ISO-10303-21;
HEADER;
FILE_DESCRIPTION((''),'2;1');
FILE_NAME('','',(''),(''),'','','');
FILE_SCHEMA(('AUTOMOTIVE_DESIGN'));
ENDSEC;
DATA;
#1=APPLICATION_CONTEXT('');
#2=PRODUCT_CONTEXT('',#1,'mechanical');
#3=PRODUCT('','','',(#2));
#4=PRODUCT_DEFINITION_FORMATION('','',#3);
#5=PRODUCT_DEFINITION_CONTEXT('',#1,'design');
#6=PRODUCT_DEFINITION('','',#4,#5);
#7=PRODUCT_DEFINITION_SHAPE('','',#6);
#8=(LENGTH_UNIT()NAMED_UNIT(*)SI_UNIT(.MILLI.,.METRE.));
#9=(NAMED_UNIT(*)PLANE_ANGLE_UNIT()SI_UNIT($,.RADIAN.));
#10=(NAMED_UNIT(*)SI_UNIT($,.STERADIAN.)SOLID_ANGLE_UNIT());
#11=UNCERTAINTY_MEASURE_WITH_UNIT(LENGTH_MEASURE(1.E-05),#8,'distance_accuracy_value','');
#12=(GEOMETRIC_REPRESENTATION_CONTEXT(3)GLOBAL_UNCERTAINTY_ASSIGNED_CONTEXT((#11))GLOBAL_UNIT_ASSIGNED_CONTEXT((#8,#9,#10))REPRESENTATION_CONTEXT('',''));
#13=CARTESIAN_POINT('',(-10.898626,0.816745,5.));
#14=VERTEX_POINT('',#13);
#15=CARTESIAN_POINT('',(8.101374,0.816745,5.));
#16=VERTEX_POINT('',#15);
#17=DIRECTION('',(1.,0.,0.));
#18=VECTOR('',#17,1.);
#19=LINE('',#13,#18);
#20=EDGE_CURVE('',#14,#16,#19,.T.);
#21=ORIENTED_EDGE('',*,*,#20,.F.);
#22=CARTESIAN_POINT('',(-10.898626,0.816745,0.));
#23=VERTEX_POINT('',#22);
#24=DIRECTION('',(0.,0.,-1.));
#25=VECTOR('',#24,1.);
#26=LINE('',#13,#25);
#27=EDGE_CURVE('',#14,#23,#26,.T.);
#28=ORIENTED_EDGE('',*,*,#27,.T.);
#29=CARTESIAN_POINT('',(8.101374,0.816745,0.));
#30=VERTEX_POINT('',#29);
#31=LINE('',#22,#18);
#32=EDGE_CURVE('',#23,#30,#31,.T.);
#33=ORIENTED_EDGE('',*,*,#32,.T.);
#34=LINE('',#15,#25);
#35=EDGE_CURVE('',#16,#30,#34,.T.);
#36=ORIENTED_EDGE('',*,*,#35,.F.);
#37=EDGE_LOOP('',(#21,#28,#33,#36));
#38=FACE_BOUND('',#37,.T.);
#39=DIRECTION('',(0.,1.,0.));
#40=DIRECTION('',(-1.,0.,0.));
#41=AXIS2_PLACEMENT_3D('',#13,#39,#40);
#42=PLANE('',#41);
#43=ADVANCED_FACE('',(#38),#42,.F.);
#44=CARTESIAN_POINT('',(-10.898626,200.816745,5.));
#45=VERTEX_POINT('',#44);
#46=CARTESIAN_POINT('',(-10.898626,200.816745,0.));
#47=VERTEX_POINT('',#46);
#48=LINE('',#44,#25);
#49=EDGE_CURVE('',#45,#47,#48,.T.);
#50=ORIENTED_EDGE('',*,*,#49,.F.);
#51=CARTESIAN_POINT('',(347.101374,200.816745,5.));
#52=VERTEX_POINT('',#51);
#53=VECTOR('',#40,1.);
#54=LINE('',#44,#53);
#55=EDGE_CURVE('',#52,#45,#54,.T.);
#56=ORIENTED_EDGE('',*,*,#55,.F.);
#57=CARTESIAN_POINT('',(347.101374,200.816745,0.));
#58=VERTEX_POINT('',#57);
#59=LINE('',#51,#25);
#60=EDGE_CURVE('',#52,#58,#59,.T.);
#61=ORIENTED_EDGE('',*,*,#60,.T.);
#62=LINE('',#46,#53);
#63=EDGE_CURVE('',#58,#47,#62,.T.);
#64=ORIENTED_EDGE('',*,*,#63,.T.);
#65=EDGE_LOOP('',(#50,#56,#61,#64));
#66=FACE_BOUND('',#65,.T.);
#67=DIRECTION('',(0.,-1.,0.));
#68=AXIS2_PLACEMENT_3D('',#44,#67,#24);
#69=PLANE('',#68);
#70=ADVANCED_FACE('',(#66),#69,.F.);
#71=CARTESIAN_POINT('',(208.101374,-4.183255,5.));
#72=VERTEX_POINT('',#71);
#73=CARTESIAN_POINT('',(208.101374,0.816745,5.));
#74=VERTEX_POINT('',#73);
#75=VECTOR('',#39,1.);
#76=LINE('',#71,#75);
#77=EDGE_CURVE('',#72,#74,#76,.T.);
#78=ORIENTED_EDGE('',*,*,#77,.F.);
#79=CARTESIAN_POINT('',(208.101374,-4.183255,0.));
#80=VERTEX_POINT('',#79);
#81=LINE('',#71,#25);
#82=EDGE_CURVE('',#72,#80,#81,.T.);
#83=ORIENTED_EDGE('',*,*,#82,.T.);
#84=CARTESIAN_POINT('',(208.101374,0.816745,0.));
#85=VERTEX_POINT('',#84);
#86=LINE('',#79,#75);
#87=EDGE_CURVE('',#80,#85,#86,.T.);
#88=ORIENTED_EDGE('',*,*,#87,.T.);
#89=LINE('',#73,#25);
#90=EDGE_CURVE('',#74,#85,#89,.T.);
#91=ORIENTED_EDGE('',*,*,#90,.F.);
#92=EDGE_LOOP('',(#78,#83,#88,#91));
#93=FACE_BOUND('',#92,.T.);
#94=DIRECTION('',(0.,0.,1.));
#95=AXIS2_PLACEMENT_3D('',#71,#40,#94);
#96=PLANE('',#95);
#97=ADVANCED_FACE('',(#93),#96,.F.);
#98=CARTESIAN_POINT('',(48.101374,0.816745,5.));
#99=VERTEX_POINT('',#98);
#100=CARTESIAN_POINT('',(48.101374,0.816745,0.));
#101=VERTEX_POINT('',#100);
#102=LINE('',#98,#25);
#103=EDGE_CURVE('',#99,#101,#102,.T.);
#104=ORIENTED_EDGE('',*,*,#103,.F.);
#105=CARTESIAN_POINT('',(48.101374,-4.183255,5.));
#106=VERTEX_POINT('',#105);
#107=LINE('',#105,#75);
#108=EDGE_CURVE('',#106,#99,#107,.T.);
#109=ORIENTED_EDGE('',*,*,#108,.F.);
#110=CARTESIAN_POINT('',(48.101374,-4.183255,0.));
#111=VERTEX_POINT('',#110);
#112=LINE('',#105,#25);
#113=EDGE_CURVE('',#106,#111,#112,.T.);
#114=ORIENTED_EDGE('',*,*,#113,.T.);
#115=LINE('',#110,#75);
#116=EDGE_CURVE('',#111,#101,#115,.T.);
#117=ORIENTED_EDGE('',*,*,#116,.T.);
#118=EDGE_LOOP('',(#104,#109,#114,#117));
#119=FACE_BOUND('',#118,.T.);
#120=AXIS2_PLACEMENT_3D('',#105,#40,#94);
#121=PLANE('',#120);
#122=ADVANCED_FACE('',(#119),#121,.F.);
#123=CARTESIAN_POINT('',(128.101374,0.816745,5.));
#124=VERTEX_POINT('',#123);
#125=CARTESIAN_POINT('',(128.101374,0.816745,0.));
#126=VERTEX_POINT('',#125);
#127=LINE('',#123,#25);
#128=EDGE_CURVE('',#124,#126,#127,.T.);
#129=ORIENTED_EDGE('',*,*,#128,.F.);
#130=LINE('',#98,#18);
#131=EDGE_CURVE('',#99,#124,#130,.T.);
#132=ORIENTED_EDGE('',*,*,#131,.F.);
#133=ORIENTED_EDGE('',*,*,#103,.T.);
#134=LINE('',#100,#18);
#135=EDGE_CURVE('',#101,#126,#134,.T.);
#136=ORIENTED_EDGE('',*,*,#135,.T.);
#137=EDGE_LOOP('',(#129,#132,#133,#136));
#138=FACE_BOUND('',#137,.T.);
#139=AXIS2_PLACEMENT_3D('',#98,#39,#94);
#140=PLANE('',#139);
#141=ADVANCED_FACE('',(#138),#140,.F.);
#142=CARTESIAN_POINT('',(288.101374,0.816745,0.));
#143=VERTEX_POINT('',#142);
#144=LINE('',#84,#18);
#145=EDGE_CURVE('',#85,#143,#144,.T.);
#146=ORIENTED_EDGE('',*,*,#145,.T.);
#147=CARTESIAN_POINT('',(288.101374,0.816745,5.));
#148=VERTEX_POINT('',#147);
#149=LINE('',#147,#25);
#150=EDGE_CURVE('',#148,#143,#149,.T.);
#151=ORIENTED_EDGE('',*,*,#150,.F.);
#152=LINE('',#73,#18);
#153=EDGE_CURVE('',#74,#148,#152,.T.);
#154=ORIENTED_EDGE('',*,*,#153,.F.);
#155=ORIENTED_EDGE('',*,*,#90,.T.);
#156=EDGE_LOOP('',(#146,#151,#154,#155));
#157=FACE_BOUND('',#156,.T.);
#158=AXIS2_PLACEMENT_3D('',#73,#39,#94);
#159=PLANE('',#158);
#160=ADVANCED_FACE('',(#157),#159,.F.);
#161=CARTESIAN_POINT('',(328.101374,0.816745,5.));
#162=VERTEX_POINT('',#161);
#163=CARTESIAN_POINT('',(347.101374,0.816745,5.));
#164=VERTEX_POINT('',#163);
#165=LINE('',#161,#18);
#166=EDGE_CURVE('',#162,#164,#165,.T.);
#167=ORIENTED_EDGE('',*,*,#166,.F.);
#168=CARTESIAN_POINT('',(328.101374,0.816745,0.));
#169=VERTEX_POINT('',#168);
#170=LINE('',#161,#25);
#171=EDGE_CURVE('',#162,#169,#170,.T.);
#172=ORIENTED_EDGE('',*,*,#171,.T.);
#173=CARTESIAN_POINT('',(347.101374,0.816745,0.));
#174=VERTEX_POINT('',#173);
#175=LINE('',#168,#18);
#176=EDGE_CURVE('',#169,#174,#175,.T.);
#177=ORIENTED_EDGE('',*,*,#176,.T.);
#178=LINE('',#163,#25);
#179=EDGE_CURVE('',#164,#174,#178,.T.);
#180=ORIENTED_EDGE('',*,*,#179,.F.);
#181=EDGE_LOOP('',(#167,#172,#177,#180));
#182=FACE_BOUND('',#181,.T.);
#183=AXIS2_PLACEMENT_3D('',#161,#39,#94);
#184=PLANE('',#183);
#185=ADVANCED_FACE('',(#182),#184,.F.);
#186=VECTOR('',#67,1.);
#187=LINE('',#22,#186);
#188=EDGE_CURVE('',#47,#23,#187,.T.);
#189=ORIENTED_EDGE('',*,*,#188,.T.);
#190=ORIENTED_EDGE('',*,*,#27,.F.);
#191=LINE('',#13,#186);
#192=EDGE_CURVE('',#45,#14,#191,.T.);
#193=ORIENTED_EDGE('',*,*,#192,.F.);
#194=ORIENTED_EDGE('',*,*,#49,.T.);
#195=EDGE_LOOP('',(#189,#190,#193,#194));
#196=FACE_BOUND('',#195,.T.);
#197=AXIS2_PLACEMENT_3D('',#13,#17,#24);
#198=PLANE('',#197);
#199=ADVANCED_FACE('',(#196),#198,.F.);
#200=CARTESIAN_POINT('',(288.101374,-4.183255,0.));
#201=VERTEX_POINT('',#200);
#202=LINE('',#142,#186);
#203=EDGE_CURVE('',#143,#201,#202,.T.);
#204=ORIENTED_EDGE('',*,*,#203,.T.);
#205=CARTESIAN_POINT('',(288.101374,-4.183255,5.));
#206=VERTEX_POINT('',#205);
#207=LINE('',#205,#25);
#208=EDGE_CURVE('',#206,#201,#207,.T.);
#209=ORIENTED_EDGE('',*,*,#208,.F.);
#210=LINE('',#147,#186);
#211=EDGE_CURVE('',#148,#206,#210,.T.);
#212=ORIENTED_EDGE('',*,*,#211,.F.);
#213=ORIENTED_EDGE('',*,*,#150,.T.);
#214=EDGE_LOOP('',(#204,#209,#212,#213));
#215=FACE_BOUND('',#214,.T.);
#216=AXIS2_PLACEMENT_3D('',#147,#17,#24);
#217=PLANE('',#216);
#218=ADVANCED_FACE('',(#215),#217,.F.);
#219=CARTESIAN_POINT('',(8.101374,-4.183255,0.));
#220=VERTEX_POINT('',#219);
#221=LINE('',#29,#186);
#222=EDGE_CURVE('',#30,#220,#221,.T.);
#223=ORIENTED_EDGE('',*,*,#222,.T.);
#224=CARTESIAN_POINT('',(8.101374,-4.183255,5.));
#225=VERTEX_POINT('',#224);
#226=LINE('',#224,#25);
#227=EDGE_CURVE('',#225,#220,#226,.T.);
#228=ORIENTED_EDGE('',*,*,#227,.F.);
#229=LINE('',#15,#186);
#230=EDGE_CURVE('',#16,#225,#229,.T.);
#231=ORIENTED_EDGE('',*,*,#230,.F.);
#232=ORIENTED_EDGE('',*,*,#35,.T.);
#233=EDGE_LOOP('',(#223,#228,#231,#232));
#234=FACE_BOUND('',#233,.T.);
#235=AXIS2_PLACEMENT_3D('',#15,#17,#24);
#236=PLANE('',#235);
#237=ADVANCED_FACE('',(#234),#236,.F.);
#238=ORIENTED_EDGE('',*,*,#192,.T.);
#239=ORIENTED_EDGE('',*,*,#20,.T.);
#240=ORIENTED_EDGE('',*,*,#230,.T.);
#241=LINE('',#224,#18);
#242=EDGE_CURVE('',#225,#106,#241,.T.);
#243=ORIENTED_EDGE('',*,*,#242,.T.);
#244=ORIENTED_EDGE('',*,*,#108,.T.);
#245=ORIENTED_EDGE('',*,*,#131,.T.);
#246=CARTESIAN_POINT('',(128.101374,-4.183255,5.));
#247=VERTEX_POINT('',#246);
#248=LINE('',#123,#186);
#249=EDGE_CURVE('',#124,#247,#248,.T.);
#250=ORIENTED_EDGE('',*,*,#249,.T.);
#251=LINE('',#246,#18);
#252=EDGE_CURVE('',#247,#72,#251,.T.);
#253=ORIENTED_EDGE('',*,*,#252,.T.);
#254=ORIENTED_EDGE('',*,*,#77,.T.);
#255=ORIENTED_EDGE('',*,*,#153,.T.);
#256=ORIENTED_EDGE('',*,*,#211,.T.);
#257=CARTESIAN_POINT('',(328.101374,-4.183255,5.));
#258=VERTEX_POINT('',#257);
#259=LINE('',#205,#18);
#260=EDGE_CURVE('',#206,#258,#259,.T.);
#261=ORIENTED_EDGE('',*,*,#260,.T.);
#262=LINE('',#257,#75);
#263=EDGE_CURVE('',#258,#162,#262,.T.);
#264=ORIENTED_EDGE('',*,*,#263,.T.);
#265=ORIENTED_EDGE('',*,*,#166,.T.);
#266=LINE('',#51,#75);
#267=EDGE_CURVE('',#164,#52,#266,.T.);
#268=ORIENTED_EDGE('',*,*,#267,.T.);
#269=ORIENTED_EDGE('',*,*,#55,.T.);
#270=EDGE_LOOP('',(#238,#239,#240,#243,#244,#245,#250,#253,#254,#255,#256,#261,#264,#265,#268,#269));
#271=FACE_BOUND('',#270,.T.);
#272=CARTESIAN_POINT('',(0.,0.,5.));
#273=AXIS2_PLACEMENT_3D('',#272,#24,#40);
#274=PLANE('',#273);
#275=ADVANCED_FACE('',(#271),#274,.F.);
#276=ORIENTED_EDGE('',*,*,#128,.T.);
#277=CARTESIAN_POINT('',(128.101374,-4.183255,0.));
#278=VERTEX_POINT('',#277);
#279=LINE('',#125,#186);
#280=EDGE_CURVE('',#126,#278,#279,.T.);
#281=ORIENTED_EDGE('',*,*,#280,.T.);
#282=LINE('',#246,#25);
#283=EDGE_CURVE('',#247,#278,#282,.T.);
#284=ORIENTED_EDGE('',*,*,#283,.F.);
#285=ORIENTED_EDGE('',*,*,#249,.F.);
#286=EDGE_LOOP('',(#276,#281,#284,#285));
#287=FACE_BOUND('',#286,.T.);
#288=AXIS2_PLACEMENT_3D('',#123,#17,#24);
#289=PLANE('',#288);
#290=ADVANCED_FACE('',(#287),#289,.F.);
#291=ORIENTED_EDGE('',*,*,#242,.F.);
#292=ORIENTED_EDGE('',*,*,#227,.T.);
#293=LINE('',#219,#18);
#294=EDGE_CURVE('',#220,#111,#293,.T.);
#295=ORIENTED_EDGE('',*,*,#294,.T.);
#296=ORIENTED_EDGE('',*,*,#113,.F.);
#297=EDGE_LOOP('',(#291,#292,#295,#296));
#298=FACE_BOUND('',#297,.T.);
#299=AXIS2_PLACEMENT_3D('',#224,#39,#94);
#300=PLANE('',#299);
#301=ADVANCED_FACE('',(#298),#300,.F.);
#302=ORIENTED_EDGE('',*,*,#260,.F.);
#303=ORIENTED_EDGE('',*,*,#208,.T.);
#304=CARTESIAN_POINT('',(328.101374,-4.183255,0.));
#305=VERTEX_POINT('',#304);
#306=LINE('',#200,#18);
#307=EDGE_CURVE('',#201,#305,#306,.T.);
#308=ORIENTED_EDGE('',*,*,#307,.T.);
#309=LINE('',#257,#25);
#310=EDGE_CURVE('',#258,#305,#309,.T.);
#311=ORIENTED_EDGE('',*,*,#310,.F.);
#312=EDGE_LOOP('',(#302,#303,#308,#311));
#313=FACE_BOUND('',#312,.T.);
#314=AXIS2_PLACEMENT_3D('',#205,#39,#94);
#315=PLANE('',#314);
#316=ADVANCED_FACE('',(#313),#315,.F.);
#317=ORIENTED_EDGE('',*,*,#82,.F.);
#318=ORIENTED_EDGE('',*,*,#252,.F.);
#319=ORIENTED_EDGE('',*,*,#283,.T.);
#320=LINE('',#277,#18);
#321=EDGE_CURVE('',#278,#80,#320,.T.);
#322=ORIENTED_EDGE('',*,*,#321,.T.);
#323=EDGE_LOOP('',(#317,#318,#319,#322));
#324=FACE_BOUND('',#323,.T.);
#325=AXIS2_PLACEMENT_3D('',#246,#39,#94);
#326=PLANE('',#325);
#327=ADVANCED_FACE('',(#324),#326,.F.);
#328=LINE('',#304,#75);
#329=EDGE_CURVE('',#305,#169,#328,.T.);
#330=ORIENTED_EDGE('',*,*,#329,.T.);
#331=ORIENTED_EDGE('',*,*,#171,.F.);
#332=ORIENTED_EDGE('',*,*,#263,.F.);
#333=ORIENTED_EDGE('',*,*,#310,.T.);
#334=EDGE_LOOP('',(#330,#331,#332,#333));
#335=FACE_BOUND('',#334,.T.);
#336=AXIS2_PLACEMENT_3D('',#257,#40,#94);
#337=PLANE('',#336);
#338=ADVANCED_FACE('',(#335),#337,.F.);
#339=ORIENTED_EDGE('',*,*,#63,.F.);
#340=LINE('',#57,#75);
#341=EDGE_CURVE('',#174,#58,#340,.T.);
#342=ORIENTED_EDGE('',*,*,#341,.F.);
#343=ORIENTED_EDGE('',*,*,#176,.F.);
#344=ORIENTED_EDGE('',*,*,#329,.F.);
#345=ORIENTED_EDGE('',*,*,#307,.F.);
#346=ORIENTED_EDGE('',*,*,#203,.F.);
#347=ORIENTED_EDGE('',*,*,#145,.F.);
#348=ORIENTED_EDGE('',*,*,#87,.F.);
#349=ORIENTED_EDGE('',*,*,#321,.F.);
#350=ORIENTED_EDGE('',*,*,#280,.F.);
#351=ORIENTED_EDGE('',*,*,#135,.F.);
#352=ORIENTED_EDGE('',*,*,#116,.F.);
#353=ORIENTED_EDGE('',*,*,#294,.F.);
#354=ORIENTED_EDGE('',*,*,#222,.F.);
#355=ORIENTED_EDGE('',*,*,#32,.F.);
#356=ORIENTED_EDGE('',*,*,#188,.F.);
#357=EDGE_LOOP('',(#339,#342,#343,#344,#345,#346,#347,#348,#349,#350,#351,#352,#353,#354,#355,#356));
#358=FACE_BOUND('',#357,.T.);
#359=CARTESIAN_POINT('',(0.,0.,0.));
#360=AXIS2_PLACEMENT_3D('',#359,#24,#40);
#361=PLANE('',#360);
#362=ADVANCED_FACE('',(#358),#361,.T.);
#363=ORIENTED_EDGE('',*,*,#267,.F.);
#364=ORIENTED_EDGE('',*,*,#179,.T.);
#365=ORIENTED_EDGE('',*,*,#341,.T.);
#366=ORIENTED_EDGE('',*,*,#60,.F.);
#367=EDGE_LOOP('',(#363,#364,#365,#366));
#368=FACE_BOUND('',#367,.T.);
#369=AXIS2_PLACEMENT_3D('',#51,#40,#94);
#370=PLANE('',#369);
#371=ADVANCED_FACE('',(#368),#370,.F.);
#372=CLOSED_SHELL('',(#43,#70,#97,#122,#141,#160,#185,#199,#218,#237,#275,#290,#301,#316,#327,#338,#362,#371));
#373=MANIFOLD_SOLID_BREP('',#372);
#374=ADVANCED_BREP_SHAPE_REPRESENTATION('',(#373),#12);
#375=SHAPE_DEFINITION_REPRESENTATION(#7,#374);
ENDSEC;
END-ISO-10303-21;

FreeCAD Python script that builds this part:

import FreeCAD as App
import Part
import Sketcher


def add_polygon(sketch, points):
    """Adds a closed chain of lines whose ends are joined by coincident constraints."""
    first, n = sketch.GeometryCount, len(points)
    for a, b in zip(points, points[1:] + points[:1]):
        sketch.addGeometry(Part.LineSegment(App.Vector(*a, 0), App.Vector(*b, 0)), False)
    for i in range(n):
        sketch.addConstraint(Sketcher.Constraint("Coincident", first + i, 2, first + (i + 1) % n, 1))

doc = App.newDocument("Part")
body = doc.addObject("PartDesign::Body", "Body")

# Sketch on XY plane
sketch1 = body.newObject("Sketcher::SketchObject", "Sketch")
sketch1.AttachmentSupport = (doc.getObject("XY_Plane"), [""])
sketch1.MapMode = "FlatFace"
add_polygon(sketch1, [(-10.898626, 0.816745), (8.101374, 0.816745), (8.101374, -4.183255), (48.101374, -4.183255), (48.101374, 0.816745), (128.101374, 0.816745), (128.101374, -4.183255), (208.101374, -4.183255), (208.101374, 0.816745), (288.101374, 0.816745), (288.101374, -4.183255), (328.101374, -4.183255), (328.101374, 0.816745), (347.101374, 0.816745), (347.101374, 200.816745), (-10.898626, 200.816745)])  # lines 0-15
sketch1.addConstraint(Sketcher.Constraint("Horizontal", 0))
sketch1.addConstraint(Sketcher.Constraint("Vertical", 1))
sketch1.addConstraint(Sketcher.Constraint("Horizontal", 2))
sketch1.addConstraint(Sketcher.Constraint("Vertical", 3))
sketch1.addConstraint(Sketcher.Constraint("Horizontal", 4))
sketch1.addConstraint(Sketcher.Constraint("Vertical", 5))
sketch1.addConstraint(Sketcher.Constraint("Horizontal", 6))
sketch1.addConstraint(Sketcher.Constraint("Vertical", 7))
sketch1.addConstraint(Sketcher.Constraint("Horizontal", 8))
sketch1.addConstraint(Sketcher.Constraint("Vertical", 9))
sketch1.addConstraint(Sketcher.Constraint("Horizontal", 10))
sketch1.addConstraint(Sketcher.Constraint("Vertical", 11))
sketch1.addConstraint(Sketcher.Constraint("Horizontal", 12))
sketch1.addConstraint(Sketcher.Constraint("Vertical", 13))
sketch1.addConstraint(Sketcher.Constraint("Horizontal", 14))
sketch1.addConstraint(Sketcher.Constraint("Vertical", 15))
sketch1.addConstraint(Sketcher.Constraint("Horizontal", 0, 2, 3, 2))
sketch1.addConstraint(Sketcher.Constraint("Horizontal", 2, 2, 5, 2))
sketch1.addConstraint(Sketcher.Constraint("Horizontal", 4, 2, 7, 2))
sketch1.addConstraint(Sketcher.Constraint("Horizontal", 6, 2, 9, 2))
sketch1.addConstraint(Sketcher.Constraint("Horizontal", 8, 2, 11, 2))
sketch1.addConstraint(Sketcher.Constraint("Equal", 4, 6))
sketch1.addConstraint(Sketcher.Constraint("Equal", 6, 8))
sketch1.addConstraint(Sketcher.Constraint("Equal", 2, 10))
sketch1.addConstraint(Sketcher.Constraint("Equal", 0, 12))
sketch1.addConstraint(Sketcher.Constraint("DistanceX", 0, 1, 0, 2, 19.0))
sketch1.addConstraint(Sketcher.Constraint("DistanceX", 2, 1, 2, 2, 40.0))
sketch1.addConstraint(Sketcher.Constraint("DistanceX", 4, 1, 4, 2, 80.0))
sketch1.addConstraint(Sketcher.Constraint("DistanceY", 1, 2, 1, 1, 5.0))
sketch1.addConstraint(Sketcher.Constraint("DistanceY", 13, 1, 13, 2, 200.0))
sketch1.addConstraint(Sketcher.Constraint("DistanceX", -1, 1, 0, 2, 8.101374))
sketch1.addConstraint(Sketcher.Constraint("DistanceY", -1, 1, 0, 2, 0.816745))
pad1 = body.newObject("PartDesign::Pad", "Pad")
pad1.Profile = sketch1
pad1.Length = 5

doc.recompute()
